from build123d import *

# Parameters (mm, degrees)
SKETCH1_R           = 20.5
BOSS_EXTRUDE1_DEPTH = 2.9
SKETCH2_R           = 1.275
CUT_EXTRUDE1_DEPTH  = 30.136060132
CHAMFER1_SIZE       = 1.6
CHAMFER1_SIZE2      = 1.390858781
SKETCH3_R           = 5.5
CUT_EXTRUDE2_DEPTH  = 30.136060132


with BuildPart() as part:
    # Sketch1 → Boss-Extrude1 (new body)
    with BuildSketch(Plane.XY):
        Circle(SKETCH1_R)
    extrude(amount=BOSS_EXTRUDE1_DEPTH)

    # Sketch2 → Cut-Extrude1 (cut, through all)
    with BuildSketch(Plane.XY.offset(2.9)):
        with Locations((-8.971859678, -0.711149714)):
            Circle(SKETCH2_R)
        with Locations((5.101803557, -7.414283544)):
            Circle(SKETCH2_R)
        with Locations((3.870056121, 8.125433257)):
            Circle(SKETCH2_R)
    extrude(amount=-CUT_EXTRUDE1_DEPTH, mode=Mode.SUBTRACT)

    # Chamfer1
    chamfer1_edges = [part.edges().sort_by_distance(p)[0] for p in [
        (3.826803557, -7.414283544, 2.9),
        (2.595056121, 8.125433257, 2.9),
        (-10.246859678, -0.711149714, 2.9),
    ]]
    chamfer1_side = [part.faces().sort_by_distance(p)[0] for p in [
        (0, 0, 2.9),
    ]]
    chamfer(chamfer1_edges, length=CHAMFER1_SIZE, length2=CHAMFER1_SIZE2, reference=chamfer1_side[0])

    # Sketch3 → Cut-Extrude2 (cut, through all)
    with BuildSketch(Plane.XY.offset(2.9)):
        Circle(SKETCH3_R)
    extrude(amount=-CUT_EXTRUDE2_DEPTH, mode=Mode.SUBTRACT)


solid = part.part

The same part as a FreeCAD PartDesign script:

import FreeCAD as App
import Part
import Sketcher
from FreeCAD import Vector
Q = App.Units.Quantity


def edges_at(feature, points):
    """Names of the edges that pass closest to the given points."""
    edges = feature.Shape.Edges
    near = lambda p: min(range(len(edges)), key=lambda i: edges[i].distToShape(Part.Vertex(*p))[0])
    return sorted({f"Edge{near(p) + 1}" for p in points})

doc = App.newDocument("Part")
params = doc.addObject("Spreadsheet::Sheet", "Params")
for row, (alias, value) in enumerate([
    ("sketch1_diameter", "41 mm"),
    ("pad1_length", "2.9 mm"),
    ("sketch2_diameter", "2.55 mm"),
    ("chamfer_size", "1.6 mm"),
    ("chamfer_size2", "1.390859 mm"),
    ("sketch3_diameter", "11 mm"),
], start=1):
    params.set(f"A{row}", alias)
    params.set(f"B{row}", "=" + value)
    params.setAlias(f"B{row}", alias)

body = doc.addObject("PartDesign::Body", "Body")

# Sketch on XY plane
sketch1 = body.newObject("Sketcher::SketchObject", "Sketch")
sketch1.AttachmentSupport = (doc.getObject("XY_Plane"), [""])
sketch1.MapMode = "FlatFace"
sketch1.addGeometry(Part.Circle(Vector(0, 0, 0), Vector(0, 0, 1), 20), False)
sketch1.addConstraint([
    Sketcher.Constraint("Coincident", 0, 3, -1, 1),
    Sketcher.Constraint("Diameter", 0, Q("41 mm")),
])
sketch1.setExpression("Constraints[1]", "Params.sketch1_diameter")
pad1 = body.newObject("PartDesign::Pad", "Pad")
pad1.Profile = sketch1
pad1.setExpression("Length", "Params.pad1_length")

# Sketch on XY plane
sketch2 = body.newObject("Sketcher::SketchObject", "Sketch001")
sketch2.AttachmentSupport = (doc.getObject("XY_Plane"), [""])
sketch2.MapMode = "FlatFace"
sketch2.AttachmentOffset = App.Placement(Vector(0, 0, 2.9), App.Rotation())
sketch2.addGeometry([
    Part.Circle(Vector(-9, -0.7, 0), Vector(0, 0, 1), 1.3),
    Part.Circle(Vector(5.1, -7.4, 0), Vector(0, 0, 1), 1.3),
    Part.Circle(Vector(3.9, 8.1, 0), Vector(0, 0, 1), 1.3),
], False)
sketch2.addConstraint([
    Sketcher.Constraint("Equal", 0, 1),
    Sketcher.Constraint("Equal", 1, 2),
    Sketcher.Constraint("Diameter", 0, Q("2.55 mm")),
    Sketcher.Constraint("DistanceX", 0, 3, -1, 1, Q("8.97186 mm")),
    Sketcher.Constraint("DistanceY", 0, 3, -1, 1, Q("0.71115 mm")),
    Sketcher.Constraint("DistanceX", -1, 1, 1, 3, Q("5.101804 mm")),
    Sketcher.Constraint("DistanceY", 1, 3, -1, 1, Q("7.414284 mm")),
    Sketcher.Constraint("DistanceX", -1, 1, 2, 3, Q("3.870056 mm")),
    Sketcher.Constraint("DistanceY", -1, 1, 2, 3, Q("8.125433 mm")),
])
sketch2.setExpression("Constraints[2]", "Params.sketch2_diameter")
pocket1 = body.newObject("PartDesign::Pocket", "Pocket")
pocket1.Profile = sketch2
pocket1.Type = "ThroughAll"
doc.recompute()

chamfer = body.newObject("PartDesign::Chamfer", "Chamfer")
chamfer.Base = (pocket1, edges_at(pocket1, [(3.827, -7.414, 2.9), (2.595, 8.125, 2.9), (-10.247, -0.711, 2.9)]))
chamfer.ChamferType = "Two distances"
chamfer.setExpression("Size", "Params.chamfer_size")
chamfer.setExpression("Size2", "Params.chamfer_size2")

# Sketch on XY plane
sketch3 = body.newObject("Sketcher::SketchObject", "Sketch002")
sketch3.AttachmentSupport = (doc.getObject("XY_Plane"), [""])
sketch3.MapMode = "FlatFace"
sketch3.AttachmentOffset = App.Placement(Vector(0, 0, 2.9), App.Rotation())
sketch3.addGeometry(Part.Circle(Vector(0, 0, 0), Vector(0, 0, 1), 6), False)
sketch3.addConstraint([
    Sketcher.Constraint("Coincident", 0, 3, -1, 1),
    Sketcher.Constraint("Diameter", 0, Q("11 mm")),
])
sketch3.setExpression("Constraints[1]", "Params.sketch3_diameter")
pocket2 = body.newObject("PartDesign::Pocket", "Pocket001")
pocket2.Profile = sketch3
pocket2.Type = "ThroughAll"

doc.recompute()
